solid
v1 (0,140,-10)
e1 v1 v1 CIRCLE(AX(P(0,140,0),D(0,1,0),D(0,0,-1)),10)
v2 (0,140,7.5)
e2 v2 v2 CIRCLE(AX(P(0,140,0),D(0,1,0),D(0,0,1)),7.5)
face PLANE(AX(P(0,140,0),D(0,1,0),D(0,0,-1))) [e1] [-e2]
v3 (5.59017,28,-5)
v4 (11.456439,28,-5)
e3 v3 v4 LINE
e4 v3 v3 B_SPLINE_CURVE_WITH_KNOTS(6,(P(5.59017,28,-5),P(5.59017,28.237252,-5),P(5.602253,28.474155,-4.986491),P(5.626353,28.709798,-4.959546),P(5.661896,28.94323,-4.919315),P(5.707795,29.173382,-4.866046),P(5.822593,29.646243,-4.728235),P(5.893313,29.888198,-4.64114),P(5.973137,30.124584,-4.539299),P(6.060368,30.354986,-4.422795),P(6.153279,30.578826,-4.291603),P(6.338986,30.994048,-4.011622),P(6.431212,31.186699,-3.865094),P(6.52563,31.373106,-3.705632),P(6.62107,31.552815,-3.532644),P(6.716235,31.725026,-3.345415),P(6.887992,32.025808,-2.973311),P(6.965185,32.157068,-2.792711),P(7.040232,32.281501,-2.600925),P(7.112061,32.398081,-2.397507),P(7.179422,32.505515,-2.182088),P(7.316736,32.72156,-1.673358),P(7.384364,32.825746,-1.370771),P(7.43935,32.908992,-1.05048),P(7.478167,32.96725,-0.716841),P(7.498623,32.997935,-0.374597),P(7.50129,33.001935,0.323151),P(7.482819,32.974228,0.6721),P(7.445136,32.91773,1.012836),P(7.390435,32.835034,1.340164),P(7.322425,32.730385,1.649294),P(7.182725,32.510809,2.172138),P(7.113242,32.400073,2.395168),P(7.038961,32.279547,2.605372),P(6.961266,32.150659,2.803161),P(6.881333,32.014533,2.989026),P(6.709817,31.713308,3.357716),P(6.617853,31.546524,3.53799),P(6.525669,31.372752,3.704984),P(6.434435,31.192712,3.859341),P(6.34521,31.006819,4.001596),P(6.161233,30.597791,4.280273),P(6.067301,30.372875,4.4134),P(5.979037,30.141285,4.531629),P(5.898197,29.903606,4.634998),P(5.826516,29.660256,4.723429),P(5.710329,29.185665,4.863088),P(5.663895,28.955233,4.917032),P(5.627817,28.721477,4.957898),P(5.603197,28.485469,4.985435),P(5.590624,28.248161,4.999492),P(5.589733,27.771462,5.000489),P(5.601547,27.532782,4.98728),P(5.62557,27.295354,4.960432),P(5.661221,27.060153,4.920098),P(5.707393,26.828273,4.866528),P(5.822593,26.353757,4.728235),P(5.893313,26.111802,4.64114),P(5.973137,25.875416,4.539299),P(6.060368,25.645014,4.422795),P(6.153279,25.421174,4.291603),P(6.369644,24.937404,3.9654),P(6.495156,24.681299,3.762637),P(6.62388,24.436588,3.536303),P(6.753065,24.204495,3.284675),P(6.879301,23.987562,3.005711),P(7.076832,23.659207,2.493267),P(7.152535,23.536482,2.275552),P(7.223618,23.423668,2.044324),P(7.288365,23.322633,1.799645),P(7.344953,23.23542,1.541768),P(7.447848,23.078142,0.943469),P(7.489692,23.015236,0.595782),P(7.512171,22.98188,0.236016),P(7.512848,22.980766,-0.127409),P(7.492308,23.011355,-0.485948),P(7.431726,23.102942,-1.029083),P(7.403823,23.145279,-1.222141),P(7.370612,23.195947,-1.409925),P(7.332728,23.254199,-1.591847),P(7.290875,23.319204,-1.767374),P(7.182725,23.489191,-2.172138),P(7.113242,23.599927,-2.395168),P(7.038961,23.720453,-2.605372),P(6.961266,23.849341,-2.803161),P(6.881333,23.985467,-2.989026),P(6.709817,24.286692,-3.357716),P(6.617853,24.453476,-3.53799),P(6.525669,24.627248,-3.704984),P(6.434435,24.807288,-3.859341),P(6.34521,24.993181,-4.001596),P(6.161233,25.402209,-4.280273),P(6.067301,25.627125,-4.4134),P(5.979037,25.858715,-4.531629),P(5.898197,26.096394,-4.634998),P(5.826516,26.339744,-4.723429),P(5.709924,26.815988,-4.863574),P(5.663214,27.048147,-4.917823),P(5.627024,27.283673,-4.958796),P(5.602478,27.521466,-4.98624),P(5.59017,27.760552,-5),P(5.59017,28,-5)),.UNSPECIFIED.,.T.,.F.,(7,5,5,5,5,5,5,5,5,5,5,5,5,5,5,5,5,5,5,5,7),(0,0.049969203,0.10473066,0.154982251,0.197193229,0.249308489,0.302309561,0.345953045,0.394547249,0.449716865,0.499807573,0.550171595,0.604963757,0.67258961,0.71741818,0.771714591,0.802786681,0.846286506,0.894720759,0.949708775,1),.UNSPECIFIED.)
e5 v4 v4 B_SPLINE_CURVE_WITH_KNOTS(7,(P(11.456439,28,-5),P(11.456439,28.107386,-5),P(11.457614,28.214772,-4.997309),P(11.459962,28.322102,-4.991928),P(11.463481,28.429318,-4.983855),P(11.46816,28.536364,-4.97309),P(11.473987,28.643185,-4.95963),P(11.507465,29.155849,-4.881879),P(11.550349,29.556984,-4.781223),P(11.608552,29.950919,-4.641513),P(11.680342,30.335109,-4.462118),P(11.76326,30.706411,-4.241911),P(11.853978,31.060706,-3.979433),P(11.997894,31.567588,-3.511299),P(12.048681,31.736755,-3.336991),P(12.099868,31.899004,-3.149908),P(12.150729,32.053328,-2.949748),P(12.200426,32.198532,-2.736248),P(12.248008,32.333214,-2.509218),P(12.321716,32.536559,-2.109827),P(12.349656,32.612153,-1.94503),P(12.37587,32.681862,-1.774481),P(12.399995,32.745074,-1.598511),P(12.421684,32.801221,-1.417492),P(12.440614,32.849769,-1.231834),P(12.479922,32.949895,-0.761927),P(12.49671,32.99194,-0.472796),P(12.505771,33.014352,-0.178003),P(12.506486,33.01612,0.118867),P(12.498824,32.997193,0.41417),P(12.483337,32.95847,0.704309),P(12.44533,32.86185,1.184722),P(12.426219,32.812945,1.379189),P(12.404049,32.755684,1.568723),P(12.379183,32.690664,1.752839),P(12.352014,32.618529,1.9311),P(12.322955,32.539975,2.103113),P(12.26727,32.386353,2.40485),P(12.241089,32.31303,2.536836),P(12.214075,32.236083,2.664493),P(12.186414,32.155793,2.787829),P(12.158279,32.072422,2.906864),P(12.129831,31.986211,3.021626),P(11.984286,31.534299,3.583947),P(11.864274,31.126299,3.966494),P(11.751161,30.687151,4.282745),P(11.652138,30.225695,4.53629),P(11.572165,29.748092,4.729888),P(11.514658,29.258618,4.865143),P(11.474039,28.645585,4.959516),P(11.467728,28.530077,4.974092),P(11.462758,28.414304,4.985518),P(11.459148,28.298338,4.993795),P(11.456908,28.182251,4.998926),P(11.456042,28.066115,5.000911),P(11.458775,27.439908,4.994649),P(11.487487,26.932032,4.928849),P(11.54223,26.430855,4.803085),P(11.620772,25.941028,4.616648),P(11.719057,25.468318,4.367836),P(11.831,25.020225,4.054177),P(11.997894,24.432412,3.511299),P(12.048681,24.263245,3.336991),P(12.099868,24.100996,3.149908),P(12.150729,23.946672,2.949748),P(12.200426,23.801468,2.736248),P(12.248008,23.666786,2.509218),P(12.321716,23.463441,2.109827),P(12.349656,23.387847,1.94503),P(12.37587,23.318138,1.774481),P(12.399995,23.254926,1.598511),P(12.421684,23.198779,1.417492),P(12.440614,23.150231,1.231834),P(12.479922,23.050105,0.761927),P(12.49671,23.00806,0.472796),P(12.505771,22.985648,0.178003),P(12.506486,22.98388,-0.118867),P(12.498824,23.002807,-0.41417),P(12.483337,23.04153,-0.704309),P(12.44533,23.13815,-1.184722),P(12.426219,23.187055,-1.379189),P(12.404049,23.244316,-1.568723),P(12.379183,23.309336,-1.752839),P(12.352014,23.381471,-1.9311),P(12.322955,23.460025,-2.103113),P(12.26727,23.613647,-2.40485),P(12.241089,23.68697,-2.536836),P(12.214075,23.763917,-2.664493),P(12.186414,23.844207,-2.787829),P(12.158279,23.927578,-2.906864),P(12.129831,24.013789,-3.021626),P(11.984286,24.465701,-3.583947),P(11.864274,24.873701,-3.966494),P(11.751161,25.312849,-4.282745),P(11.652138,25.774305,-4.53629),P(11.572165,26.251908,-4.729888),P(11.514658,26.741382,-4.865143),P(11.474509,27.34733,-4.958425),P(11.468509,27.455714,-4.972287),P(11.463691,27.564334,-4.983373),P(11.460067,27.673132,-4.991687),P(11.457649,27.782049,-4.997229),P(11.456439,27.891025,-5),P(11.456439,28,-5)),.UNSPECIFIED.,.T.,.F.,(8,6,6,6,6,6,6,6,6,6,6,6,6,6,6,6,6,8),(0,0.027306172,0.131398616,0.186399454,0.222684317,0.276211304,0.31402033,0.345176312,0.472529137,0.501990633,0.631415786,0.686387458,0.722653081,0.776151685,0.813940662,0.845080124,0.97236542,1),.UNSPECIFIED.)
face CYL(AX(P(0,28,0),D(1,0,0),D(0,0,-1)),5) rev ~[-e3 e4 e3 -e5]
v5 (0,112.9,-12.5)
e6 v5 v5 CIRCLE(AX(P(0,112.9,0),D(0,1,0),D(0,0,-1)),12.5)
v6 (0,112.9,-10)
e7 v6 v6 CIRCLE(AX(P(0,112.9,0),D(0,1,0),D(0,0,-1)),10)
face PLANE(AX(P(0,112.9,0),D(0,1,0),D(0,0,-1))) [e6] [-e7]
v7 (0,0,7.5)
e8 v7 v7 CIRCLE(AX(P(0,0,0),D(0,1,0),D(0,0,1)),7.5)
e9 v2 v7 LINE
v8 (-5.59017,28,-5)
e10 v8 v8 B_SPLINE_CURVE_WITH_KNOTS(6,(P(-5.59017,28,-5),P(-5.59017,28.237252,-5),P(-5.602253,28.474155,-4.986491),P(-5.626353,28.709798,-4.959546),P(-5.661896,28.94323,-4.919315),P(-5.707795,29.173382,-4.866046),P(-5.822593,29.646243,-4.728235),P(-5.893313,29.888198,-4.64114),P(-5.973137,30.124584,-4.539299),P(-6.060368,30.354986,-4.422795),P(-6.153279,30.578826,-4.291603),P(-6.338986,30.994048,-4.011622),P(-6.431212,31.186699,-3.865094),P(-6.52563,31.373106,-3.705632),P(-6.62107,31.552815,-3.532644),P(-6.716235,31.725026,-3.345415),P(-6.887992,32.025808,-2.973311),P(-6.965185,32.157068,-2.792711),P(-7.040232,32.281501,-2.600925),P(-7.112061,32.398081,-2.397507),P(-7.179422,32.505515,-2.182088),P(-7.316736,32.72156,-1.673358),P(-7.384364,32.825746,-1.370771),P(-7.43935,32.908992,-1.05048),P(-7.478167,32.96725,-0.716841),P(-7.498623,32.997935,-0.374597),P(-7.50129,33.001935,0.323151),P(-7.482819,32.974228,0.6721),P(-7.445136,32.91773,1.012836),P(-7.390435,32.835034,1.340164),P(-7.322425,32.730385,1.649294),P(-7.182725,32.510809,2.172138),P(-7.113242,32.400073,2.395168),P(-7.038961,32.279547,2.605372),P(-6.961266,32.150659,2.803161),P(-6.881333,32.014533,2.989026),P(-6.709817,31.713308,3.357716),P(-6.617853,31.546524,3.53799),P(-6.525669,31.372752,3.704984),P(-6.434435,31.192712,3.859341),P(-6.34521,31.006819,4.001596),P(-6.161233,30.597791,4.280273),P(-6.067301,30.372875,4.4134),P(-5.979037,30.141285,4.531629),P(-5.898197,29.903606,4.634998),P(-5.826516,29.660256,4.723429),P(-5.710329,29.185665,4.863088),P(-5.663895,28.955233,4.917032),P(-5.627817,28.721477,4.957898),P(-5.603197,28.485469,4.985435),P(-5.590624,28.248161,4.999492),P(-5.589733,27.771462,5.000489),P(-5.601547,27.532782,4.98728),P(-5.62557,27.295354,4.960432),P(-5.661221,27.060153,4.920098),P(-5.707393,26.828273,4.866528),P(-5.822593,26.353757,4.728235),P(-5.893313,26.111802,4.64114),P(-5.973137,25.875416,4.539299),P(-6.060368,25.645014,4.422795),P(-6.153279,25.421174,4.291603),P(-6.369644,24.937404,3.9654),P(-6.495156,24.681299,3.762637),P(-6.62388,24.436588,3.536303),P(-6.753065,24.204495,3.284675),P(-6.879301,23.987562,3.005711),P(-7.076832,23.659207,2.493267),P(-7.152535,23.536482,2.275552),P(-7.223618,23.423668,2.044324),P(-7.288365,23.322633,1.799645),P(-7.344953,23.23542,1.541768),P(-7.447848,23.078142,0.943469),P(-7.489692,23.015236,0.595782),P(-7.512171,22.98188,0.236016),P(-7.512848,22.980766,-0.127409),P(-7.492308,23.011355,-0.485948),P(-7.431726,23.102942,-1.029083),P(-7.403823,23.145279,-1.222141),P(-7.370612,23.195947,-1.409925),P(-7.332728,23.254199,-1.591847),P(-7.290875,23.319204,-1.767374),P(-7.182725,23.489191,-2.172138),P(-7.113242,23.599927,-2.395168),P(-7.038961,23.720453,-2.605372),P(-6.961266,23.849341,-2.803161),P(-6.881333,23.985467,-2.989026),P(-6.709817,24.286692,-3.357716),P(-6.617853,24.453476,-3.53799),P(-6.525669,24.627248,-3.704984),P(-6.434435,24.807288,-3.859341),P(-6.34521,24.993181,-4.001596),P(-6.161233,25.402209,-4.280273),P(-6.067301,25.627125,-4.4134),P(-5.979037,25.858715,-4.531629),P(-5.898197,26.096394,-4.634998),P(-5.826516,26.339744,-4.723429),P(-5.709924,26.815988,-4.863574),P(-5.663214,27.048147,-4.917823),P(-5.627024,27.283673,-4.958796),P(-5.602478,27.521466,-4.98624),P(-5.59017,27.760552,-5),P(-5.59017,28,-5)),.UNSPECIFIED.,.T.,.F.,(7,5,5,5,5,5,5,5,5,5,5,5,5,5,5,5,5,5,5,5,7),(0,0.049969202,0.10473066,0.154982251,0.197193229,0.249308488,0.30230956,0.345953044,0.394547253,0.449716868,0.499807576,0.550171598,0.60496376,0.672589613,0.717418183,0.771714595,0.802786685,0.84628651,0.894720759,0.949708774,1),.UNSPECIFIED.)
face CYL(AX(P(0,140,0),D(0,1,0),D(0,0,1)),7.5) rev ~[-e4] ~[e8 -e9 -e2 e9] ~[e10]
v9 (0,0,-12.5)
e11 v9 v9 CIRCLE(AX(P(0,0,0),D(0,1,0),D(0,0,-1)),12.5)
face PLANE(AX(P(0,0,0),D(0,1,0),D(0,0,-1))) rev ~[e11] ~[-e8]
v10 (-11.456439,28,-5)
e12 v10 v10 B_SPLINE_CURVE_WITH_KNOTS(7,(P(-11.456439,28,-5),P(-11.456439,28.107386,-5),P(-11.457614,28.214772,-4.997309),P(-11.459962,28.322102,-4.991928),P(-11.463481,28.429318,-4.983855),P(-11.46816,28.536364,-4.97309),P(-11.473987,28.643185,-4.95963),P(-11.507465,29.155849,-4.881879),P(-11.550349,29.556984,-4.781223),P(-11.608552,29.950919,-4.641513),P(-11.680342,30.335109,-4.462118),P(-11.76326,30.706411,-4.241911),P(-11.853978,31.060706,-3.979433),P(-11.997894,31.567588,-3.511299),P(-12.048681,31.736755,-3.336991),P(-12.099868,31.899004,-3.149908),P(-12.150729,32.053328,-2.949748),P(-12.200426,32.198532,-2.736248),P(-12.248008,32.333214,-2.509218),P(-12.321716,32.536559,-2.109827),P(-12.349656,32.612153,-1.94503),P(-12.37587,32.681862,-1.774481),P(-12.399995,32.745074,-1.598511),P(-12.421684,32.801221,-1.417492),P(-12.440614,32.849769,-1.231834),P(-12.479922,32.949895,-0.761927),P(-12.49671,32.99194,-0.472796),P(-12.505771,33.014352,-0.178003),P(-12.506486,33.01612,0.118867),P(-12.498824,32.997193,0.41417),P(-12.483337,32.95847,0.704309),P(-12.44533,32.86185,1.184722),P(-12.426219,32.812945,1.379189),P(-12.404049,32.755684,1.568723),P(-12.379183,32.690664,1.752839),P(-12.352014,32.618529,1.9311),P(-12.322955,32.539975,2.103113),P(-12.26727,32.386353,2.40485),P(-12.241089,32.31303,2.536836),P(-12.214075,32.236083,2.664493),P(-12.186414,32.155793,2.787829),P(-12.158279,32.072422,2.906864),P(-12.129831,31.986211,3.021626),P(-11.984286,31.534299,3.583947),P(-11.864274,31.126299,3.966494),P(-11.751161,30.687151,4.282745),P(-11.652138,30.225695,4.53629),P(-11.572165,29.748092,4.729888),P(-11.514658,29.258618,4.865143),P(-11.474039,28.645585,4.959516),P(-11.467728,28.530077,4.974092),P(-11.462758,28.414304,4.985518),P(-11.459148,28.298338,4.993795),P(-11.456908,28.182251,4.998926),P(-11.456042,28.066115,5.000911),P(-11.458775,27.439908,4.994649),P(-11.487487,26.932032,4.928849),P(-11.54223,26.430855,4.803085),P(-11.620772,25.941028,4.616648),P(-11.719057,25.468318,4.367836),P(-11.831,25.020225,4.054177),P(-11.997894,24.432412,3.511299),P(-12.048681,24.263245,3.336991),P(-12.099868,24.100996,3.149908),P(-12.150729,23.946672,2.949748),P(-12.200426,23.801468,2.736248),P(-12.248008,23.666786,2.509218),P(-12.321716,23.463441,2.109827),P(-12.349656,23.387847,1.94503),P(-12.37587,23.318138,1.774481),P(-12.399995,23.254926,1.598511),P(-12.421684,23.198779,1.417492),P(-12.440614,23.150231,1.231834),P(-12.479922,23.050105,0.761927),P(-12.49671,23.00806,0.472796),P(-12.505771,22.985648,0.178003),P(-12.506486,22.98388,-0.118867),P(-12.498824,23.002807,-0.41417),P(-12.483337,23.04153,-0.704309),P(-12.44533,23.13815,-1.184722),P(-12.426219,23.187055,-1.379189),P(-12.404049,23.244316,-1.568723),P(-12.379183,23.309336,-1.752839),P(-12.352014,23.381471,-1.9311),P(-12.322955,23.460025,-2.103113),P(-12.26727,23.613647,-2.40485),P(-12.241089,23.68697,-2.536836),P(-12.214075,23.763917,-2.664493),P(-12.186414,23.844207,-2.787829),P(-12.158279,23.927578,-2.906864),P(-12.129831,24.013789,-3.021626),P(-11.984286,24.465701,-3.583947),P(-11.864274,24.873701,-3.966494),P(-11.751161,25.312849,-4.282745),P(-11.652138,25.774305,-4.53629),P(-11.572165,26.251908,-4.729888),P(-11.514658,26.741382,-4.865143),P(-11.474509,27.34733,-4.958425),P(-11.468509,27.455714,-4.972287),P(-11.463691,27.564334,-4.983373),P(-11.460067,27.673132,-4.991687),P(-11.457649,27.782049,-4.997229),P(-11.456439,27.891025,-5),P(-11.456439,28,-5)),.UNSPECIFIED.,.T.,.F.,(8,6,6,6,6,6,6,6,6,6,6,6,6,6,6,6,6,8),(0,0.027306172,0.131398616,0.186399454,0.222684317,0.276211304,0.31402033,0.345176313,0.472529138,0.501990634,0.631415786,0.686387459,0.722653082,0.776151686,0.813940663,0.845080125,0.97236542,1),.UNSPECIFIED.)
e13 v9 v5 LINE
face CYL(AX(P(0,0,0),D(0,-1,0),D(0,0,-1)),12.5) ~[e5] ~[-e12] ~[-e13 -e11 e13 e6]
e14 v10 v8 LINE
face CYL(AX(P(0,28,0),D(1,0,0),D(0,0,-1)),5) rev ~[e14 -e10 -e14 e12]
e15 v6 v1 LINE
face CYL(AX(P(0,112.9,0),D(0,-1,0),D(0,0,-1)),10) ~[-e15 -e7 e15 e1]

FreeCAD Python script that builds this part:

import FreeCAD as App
import Part
import Sketcher
from FreeCAD import Vector

doc = App.newDocument("Part")
params = doc.addObject("Spreadsheet::Sheet", "Params")
for row, (alias, value) in enumerate([
    ("sketch1_diameter", "25 mm"),
    ("pad1_length", "112.9 mm"),
    ("sketch2_diameter", "20 mm"),
    ("pad2_length", "27.1 mm"),
    ("sketch3_diameter", "15 mm"),
    ("sketch4_diameter", "10 mm"),
    ("pocket2_length", "30 mm"),
], start=1):
    params.set(f"A{row}", alias)
    params.set(f"B{row}", "=" + value)
    params.setAlias(f"B{row}", alias)

body = doc.addObject("PartDesign::Body", "Body")

# Sketch on XZ plane
sketch1 = body.newObject("Sketcher::SketchObject", "Sketch")
sketch1.AttachmentSupport = (doc.getObject("XZ_Plane"), [""])
sketch1.MapMode = "FlatFace"
sketch1.addGeometry(Part.Circle(Vector(0, 0, 0), Vector(0, 0, 1), 12.5), False)
sketch1.addConstraint([
    Sketcher.Constraint("Coincident", 0, 3, -1, 1),
    Sketcher.Constraint("Diameter", 0, 25.0),
])
sketch1.setExpression("Constraints[1]", "Params.sketch1_diameter")
pad1 = body.newObject("PartDesign::Pad", "Pad")
pad1.Profile = sketch1
pad1.setExpression("Length", "Params.pad1_length")
pad1.Reversed = True

# Sketch on XZ plane
sketch2 = body.newObject("Sketcher::SketchObject", "Sketch001")
sketch2.AttachmentSupport = (doc.getObject("XZ_Plane"), [""])
sketch2.MapMode = "FlatFace"
sketch2.AttachmentOffset = App.Placement(Vector(0, 0, -112.9), App.Rotation())
sketch2.addGeometry(Part.Circle(Vector(0, 0, 0), Vector(0, 0, 1), 10), False)
sketch2.addConstraint([
    Sketcher.Constraint("Coincident", 0, 3, -1, 1),
    Sketcher.Constraint("Diameter", 0, 20.0),
])
sketch2.setExpression("Constraints[1]", "Params.sketch2_diameter")
pad2 = body.newObject("PartDesign::Pad", "Pad001")
pad2.Profile = sketch2
pad2.setExpression("Length", "Params.pad2_length")
pad2.Reversed = True

# Sketch on XZ plane
sketch3 = body.newObject("Sketcher::SketchObject", "Sketch002")
sketch3.AttachmentSupport = (doc.getObject("XZ_Plane"), [""])
sketch3.MapMode = "FlatFace"
sketch3.AttachmentOffset = App.Placement(Vector(0, 0, -140), App.Rotation())
sketch3.addGeometry(Part.Circle(Vector(0, 0, 0), Vector(0, 0, 1), 7.5), False)
sketch3.addConstraint([
    Sketcher.Constraint("Coincident", 0, 3, -1, 1),
    Sketcher.Constraint("Diameter", 0, 15.0),
])
sketch3.setExpression("Constraints[1]", "Params.sketch3_diameter")
pocket1 = body.newObject("PartDesign::Pocket", "Pocket")
pocket1.Profile = sketch3
pocket1.Type = "ThroughAll"
pocket1.Reversed = True

# Sketch on YZ plane
sketch4 = body.newObject("Sketcher::SketchObject", "Sketch003")
sketch4.AttachmentSupport = (doc.getObject("YZ_Plane"), [""])
sketch4.MapMode = "FlatFace"
sketch4.addGeometry(Part.Circle(Vector(28, 0, 0), Vector(0, 0, 1), 5), False)
sketch4.addConstraint([
    Sketcher.Constraint("PointOnObject", 0, 3, -1),
    Sketcher.Constraint("Diameter", 0, 10.0),
    Sketcher.Constraint("DistanceX", -1, 1, 0, 3, 28.0),
])
sketch4.setExpression("Constraints[1]", "Params.sketch4_diameter")
pocket2 = body.newObject("PartDesign::Pocket", "Pocket001")
pocket2.Profile = sketch4
pocket2.setExpression("Length", "Params.pocket2_length")
pocket2.Midplane = True

doc.recompute()
